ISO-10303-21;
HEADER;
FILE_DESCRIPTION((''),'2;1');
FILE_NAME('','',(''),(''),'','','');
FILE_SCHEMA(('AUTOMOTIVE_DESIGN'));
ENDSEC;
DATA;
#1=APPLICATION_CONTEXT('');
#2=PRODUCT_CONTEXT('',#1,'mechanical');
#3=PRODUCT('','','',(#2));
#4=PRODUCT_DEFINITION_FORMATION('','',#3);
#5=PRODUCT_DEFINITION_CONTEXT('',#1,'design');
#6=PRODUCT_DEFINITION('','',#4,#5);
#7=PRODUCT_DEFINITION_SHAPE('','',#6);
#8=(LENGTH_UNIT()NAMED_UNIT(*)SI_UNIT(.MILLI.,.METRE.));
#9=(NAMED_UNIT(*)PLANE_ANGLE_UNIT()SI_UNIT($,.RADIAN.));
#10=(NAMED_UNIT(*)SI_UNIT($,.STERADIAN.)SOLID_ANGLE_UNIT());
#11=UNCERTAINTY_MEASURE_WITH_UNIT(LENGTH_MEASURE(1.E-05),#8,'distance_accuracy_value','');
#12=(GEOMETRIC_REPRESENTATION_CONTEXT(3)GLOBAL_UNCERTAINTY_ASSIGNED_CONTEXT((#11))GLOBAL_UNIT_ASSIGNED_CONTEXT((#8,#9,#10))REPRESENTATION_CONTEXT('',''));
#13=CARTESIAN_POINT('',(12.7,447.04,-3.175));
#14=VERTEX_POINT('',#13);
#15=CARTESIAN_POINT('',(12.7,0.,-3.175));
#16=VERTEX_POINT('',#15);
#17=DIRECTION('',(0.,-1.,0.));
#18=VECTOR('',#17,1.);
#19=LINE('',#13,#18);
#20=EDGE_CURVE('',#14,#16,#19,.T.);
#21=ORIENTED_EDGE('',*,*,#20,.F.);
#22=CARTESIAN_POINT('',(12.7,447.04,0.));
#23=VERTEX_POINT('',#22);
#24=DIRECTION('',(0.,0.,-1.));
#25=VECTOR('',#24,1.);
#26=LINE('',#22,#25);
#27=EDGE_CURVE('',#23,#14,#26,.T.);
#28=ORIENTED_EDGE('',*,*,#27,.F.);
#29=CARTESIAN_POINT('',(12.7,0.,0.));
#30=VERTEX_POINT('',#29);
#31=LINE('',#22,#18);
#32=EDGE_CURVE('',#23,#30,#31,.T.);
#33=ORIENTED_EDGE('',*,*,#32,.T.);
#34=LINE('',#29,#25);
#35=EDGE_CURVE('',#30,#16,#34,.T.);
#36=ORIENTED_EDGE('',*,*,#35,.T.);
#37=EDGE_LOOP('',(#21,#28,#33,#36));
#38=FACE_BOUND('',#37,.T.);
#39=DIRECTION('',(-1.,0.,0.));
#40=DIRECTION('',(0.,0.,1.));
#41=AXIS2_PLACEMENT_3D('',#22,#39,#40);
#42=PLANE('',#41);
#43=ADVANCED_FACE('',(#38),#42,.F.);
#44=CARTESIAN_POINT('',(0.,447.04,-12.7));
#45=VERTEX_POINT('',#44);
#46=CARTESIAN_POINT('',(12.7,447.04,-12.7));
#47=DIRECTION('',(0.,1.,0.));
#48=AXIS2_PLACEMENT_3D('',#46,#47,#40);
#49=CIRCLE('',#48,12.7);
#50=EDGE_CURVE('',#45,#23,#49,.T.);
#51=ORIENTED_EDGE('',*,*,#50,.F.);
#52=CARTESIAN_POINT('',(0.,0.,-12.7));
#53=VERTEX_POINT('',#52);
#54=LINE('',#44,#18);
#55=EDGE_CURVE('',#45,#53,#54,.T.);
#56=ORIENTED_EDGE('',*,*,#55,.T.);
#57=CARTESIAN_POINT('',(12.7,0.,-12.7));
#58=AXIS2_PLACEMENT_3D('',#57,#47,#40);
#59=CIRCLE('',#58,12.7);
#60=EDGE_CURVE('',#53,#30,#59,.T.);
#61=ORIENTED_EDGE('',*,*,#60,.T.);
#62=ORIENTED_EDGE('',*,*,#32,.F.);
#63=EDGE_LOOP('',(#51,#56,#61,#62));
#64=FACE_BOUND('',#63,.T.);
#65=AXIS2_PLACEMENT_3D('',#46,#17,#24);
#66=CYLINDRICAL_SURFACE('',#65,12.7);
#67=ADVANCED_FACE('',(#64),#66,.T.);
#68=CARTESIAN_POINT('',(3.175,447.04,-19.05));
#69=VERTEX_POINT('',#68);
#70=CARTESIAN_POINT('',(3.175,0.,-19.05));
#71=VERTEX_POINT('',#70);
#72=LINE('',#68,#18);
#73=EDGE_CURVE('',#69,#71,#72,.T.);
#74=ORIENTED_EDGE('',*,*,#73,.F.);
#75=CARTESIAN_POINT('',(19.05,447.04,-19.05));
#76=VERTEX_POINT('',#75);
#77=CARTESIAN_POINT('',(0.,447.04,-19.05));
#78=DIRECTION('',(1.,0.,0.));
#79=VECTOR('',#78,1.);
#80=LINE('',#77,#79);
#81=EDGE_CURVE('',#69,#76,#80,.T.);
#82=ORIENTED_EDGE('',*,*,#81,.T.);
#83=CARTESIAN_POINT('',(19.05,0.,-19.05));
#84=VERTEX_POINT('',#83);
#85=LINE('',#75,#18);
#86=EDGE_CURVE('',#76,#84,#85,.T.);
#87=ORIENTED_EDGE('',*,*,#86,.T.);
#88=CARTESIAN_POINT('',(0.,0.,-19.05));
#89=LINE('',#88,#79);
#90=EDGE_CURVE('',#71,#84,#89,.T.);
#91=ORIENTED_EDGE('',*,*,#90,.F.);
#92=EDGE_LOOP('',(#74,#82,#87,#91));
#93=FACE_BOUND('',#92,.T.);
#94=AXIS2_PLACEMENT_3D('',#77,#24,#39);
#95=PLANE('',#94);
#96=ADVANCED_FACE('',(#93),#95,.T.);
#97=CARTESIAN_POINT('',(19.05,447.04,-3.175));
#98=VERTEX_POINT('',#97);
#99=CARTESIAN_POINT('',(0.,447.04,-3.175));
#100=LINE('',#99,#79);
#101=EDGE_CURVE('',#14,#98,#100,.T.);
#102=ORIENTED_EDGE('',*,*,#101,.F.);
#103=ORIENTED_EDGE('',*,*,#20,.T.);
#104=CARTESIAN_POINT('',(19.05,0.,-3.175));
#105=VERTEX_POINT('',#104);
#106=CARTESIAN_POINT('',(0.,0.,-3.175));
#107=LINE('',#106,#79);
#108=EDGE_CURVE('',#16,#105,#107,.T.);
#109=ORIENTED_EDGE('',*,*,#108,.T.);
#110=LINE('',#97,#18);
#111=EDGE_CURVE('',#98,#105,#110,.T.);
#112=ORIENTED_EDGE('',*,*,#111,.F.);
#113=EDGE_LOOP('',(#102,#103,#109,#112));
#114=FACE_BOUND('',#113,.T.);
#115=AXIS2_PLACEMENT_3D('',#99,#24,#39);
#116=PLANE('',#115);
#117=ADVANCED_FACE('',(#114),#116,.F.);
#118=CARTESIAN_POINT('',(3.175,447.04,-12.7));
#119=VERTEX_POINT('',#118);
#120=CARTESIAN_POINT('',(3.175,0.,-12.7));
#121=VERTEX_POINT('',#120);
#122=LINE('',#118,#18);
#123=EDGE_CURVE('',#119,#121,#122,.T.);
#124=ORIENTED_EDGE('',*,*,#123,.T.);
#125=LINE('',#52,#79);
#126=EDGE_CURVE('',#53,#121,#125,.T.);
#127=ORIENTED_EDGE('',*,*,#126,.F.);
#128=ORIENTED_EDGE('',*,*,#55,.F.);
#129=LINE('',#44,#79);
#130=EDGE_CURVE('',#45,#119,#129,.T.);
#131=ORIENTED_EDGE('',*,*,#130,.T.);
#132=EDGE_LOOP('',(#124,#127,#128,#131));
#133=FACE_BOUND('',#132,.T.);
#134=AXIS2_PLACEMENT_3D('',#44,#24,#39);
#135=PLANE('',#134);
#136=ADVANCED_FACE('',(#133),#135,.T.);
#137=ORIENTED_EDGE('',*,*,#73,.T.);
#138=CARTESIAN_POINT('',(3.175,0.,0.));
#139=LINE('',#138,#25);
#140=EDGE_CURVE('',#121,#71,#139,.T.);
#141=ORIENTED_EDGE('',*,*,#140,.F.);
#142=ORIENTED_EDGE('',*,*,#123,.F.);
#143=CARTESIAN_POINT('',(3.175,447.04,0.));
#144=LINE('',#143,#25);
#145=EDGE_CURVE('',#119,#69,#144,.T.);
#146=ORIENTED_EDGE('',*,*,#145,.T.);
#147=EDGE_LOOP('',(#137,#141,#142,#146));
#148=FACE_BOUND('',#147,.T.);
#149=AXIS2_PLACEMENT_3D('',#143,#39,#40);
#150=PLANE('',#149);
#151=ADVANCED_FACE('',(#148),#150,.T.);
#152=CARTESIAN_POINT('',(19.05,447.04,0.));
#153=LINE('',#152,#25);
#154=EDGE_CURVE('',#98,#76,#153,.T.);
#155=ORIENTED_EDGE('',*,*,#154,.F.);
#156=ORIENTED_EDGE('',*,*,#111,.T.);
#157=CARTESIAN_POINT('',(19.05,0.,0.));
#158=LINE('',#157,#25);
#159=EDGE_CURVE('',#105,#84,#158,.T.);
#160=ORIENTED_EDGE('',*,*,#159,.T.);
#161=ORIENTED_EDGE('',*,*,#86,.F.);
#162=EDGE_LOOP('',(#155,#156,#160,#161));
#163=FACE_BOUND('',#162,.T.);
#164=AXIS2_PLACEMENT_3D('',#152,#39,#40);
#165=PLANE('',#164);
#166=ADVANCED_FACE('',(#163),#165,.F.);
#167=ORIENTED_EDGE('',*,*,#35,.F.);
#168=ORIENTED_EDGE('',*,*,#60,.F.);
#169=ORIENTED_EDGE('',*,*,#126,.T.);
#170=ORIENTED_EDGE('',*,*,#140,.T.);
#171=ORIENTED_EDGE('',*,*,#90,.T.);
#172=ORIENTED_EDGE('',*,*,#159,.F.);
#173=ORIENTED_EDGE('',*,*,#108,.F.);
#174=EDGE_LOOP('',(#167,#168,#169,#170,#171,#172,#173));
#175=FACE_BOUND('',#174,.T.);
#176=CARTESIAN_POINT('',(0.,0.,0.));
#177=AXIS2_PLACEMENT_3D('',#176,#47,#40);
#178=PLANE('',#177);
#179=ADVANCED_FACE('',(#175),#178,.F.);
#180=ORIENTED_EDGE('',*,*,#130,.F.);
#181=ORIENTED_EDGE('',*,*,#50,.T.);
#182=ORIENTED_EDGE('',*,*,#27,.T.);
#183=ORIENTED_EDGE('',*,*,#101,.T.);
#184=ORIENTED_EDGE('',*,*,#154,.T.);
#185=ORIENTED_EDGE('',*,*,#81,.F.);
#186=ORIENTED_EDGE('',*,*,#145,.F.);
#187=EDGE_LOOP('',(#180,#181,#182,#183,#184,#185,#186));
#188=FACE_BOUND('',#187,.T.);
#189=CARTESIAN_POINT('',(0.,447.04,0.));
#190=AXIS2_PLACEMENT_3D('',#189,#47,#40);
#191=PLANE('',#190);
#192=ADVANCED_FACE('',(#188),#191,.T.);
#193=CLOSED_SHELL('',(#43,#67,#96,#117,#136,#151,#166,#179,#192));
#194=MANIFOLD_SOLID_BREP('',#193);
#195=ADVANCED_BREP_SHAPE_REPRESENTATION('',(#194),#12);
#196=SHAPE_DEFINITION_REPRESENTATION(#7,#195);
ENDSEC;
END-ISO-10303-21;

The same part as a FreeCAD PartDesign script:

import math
import FreeCAD as App
import Part
import Sketcher

V = App.Vector
Q = App.Units.Quantity

doc = App.newDocument("Part")
body = doc.addObject("PartDesign::Body", "Body")

# Sketch on XZ plane
sketch1 = body.newObject("Sketcher::SketchObject", "Sketch")
sketch1.AttachmentSupport = (doc.getObject("XZ_Plane"), [""])
sketch1.MapMode = "FlatFace"
sketch1.addGeometry([
    Part.ArcOfCircle(Part.Circle(V(12.7, -12.7, 0), V(0, 0, 1), 12.7), math.radians(90), math.radians(180)),  # 0
    Part.LineSegment(V(12.7, 0, 0), V(12.7, -3.2, 0)),  # 1
    Part.LineSegment(V(12.7, -3.2, 0), V(19.1, -3.2, 0)),  # 2
    Part.LineSegment(V(19.1, -3.2, 0), V(19.1, -19.1, 0)),  # 3
    Part.LineSegment(V(19.1, -19.1, 0), V(3.2, -19.1, 0)),  # 4
    Part.LineSegment(V(3.2, -19.1, 0), V(3.2, -12.7, 0)),  # 5
    Part.LineSegment(V(3.2, -12.7, 0), V(0, -12.7, 0)),  # 6
], False)
sketch1.addConstraint([
    Sketcher.Constraint("Coincident", 0, 1, 1, 1),
    Sketcher.Constraint("Coincident", 1, 2, 2, 1),
    Sketcher.Constraint("Coincident", 2, 2, 3, 1),
    Sketcher.Constraint("Coincident", 3, 2, 4, 1),
    Sketcher.Constraint("Coincident", 4, 2, 5, 1),
    Sketcher.Constraint("Coincident", 5, 2, 6, 1),
    Sketcher.Constraint("Coincident", 6, 2, 0, 2),
    Sketcher.Constraint("Vertical", 1),
    Sketcher.Constraint("Horizontal", 2),
    Sketcher.Constraint("Vertical", 3),
    Sketcher.Constraint("Horizontal", 4),
    Sketcher.Constraint("Vertical", 5),
    Sketcher.Constraint("Horizontal", 6),
    Sketcher.Constraint("PointOnObject", 0, 1, -1),
    Sketcher.Constraint("PointOnObject", 6, 2, -2),
    Sketcher.Constraint("Horizontal", 0, 3, 5, 2),
    Sketcher.Constraint("Equal", 6, 1),
    Sketcher.Constraint("Equal", 4, 3),
    Sketcher.Constraint("Equal", 2, 5),
    Sketcher.Constraint("Radius", 0, Q("0.5 in")),
    Sketcher.Constraint("DistanceX", 2, 1, 2, 2, Q("0.25 in")),
    Sketcher.Constraint("DistanceX", 4, 2, 4, 1, Q("0.625 in")),
])
pad1 = body.newObject("PartDesign::Pad", "Pad")
pad1.Profile = sketch1
pad1.Length = Q("17.6 in")
pad1.Reversed = True

doc.recompute()
